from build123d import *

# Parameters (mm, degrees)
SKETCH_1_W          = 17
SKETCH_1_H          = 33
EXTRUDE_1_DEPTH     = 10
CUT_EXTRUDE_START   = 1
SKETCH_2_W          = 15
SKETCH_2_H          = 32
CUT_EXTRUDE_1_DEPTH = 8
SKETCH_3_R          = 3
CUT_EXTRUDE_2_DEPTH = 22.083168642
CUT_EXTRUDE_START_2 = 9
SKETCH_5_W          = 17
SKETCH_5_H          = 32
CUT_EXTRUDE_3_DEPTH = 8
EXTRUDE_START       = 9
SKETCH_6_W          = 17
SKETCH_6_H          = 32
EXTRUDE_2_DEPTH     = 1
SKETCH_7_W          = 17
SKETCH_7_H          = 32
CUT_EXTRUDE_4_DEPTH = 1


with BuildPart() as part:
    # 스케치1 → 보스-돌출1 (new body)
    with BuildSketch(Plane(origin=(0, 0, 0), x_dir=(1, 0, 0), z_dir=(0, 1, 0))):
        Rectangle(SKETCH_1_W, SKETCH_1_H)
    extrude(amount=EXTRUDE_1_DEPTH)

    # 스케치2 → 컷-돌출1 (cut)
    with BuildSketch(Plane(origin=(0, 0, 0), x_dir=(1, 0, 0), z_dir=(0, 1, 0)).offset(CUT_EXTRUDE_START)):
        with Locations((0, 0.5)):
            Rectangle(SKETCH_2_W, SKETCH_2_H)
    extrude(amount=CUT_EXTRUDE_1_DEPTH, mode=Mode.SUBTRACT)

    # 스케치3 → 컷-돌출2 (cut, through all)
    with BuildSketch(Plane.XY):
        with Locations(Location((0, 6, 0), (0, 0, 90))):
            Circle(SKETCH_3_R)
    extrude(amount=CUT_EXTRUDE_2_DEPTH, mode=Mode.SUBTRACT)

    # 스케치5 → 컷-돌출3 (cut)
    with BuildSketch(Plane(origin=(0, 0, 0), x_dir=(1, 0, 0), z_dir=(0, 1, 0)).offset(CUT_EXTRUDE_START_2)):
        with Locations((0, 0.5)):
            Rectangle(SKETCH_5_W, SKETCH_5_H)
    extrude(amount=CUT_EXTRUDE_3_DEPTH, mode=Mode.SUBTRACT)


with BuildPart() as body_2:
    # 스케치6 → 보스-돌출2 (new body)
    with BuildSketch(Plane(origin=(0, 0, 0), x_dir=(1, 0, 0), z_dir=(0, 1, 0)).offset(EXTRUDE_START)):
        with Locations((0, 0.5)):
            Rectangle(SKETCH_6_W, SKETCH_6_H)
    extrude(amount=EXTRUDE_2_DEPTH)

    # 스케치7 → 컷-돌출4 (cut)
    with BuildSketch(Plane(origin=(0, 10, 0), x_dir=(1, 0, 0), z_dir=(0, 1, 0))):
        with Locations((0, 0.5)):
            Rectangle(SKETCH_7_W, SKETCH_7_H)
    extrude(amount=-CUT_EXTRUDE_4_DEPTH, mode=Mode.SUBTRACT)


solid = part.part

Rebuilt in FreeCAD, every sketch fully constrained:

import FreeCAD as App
import Part
import Sketcher

V = App.Vector

doc = App.newDocument("Part")
params = doc.addObject("Spreadsheet::Sheet", "Params")
for row, (alias, value) in enumerate([
    ("sketch1_width", "17 mm"),
    ("sketch1_height", "33 mm"),
    ("pad1_length", "10 mm"),
    ("sketch2_width", "15 mm"),
    ("sketch2_height", "32 mm"),
    ("pocket1_length", "8 mm"),
    ("sketch3_diameter", "6 mm"),
    ("sketch4_width", "17 mm"),
    ("sketch4_height", "32 mm"),
    ("pocket3_length", "8 mm"),
    ("sketch5_width", "17 mm"),
    ("sketch5_height", "32 mm"),
    ("pad2_length", "1 mm"),
    ("sketch6_width", "17 mm"),
    ("sketch6_height", "32 mm"),
    ("pocket4_length", "1 mm"),
], start=1):
    params.set(f"A{row}", alias)
    params.set(f"B{row}", "=" + value)
    params.setAlias(f"B{row}", alias)

body = doc.addObject("PartDesign::Body", "Body")

# Sketch on XZ plane
sketch1 = body.newObject("Sketcher::SketchObject", "Sketch")
sketch1.AttachmentSupport = (doc.getObject("XZ_Plane"), [""])
sketch1.MapMode = "FlatFace"
sketch1.addGeometry([
    Part.LineSegment(V(-8, -16, 0), V(-8, 16, 0)),
    Part.LineSegment(V(-8, 16, 0), V(8, 16, 0)),
    Part.LineSegment(V(8, 16, 0), V(8, -16, 0)),
    Part.LineSegment(V(8, -16, 0), V(-8, -16, 0)),
], False)
sketch1.addConstraint([
    Sketcher.Constraint("Coincident", 0, 2, 1, 1),
    Sketcher.Constraint("Coincident", 1, 2, 2, 1),
    Sketcher.Constraint("Coincident", 2, 2, 3, 1),
    Sketcher.Constraint("Coincident", 3, 2, 0, 1),
    Sketcher.Constraint("Vertical", 0),
    Sketcher.Constraint("Horizontal", 1),
    Sketcher.Constraint("Vertical", 2),
    Sketcher.Constraint("Horizontal", 3),
    Sketcher.Constraint("Symmetric", 0, 2, 2, 2, -1, 1),
    Sketcher.Constraint("DistanceX", 1, 1, 1, 2, 17.0),
    Sketcher.Constraint("DistanceY", 0, 1, 0, 2, 33.0),
])
sketch1.setExpression("Constraints[9]", "Params.sketch1_width")
sketch1.setExpression("Constraints[10]", "Params.sketch1_height")
pad1 = body.newObject("PartDesign::Pad", "Pad")
pad1.Profile = sketch1
pad1.setExpression("Length", "Params.pad1_length")
pad1.Reversed = True

# Sketch on XZ plane
sketch2 = body.newObject("Sketcher::SketchObject", "Sketch001")
sketch2.AttachmentSupport = (doc.getObject("XZ_Plane"), [""])
sketch2.MapMode = "FlatFace"
sketch2.AttachmentOffset = App.Placement(V(0, 0, -1), App.Rotation())
sketch2.addGeometry([
    Part.LineSegment(V(-8, -16, 0), V(-8, 16, 0)),
    Part.LineSegment(V(-8, 16, 0), V(8, 16, 0)),
    Part.LineSegment(V(8, 16, 0), V(8, -16, 0)),
    Part.LineSegment(V(8, -16, 0), V(-8, -16, 0)),
], False)
sketch2.addConstraint([
    Sketcher.Constraint("Coincident", 0, 2, 1, 1),
    Sketcher.Constraint("Coincident", 1, 2, 2, 1),
    Sketcher.Constraint("Coincident", 2, 2, 3, 1),
    Sketcher.Constraint("Coincident", 3, 2, 0, 1),
    Sketcher.Constraint("Vertical", 0),
    Sketcher.Constraint("Horizontal", 1),
    Sketcher.Constraint("Vertical", 2),
    Sketcher.Constraint("Horizontal", 3),
    Sketcher.Constraint("DistanceX", 1, 1, 1, 2, 15.0),
    Sketcher.Constraint("DistanceY", 0, 1, 0, 2, 32.0),
    Sketcher.Constraint("DistanceX", 0, 2, -1, 1, 7.5),
    Sketcher.Constraint("DistanceY", -1, 1, 0, 2, 15.5),
])
sketch2.setExpression("Constraints[8]", "Params.sketch2_width")
sketch2.setExpression("Constraints[9]", "Params.sketch2_height")
pocket1 = body.newObject("PartDesign::Pocket", "Pocket")
pocket1.Profile = sketch2
pocket1.setExpression("Length", "Params.pocket1_length")

# Sketch on XY plane
sketch3 = body.newObject("Sketcher::SketchObject", "Sketch002")
sketch3.AttachmentSupport = (doc.getObject("XY_Plane"), [""])
sketch3.MapMode = "FlatFace"
sketch3.addGeometry(Part.Circle(V(0, 6, 0), V(0, 0, 1), 3), False)
sketch3.addConstraint([
    Sketcher.Constraint("PointOnObject", 0, 3, -2),
    Sketcher.Constraint("Diameter", 0, 6.0),
    Sketcher.Constraint("DistanceY", -1, 1, 0, 3, 6.0),
])
sketch3.setExpression("Constraints[1]", "Params.sketch3_diameter")
pocket2 = body.newObject("PartDesign::Pocket", "Pocket001")
pocket2.Profile = sketch3
pocket2.Type = "ThroughAll"
pocket2.Reversed = True

# Sketch on XZ plane
sketch4 = body.newObject("Sketcher::SketchObject", "Sketch003")
sketch4.AttachmentSupport = (doc.getObject("XZ_Plane"), [""])
sketch4.MapMode = "FlatFace"
sketch4.AttachmentOffset = App.Placement(V(0, 0, -9), App.Rotation())
sketch4.addGeometry([
    Part.LineSegment(V(-8, -16, 0), V(-8, 16, 0)),
    Part.LineSegment(V(-8, 16, 0), V(8, 16, 0)),
    Part.LineSegment(V(8, 16, 0), V(8, -16, 0)),
    Part.LineSegment(V(8, -16, 0), V(-8, -16, 0)),
], False)
sketch4.addConstraint([
    Sketcher.Constraint("Coincident", 0, 2, 1, 1),
    Sketcher.Constraint("Coincident", 1, 2, 2, 1),
    Sketcher.Constraint("Coincident", 2, 2, 3, 1),
    Sketcher.Constraint("Coincident", 3, 2, 0, 1),
    Sketcher.Constraint("Vertical", 0),
    Sketcher.Constraint("Horizontal", 1),
    Sketcher.Constraint("Vertical", 2),
    Sketcher.Constraint("Horizontal", 3),
    Sketcher.Constraint("DistanceX", 1, 1, 1, 2, 17.0),
    Sketcher.Constraint("DistanceY", 0, 1, 0, 2, 32.0),
    Sketcher.Constraint("DistanceX", 0, 2, -1, 1, 8.5),
    Sketcher.Constraint("DistanceY", -1, 1, 0, 2, 15.5),
])
sketch4.setExpression("Constraints[8]", "Params.sketch4_width")
sketch4.setExpression("Constraints[9]", "Params.sketch4_height")
pocket3 = body.newObject("PartDesign::Pocket", "Pocket002")
pocket3.Profile = sketch4
pocket3.setExpression("Length", "Params.pocket3_length")
body2 = doc.addObject("PartDesign::Body", "Body001")

# Sketch on XZ plane
sketch5 = body2.newObject("Sketcher::SketchObject", "Sketch004")
sketch5.AttachmentSupport = (doc.getObject("XZ_Plane001"), [""])
sketch5.MapMode = "FlatFace"
sketch5.AttachmentOffset = App.Placement(V(0, 0, -9), App.Rotation())
sketch5.addGeometry([
    Part.LineSegment(V(-8, -16, 0), V(-8, 16, 0)),
    Part.LineSegment(V(-8, 16, 0), V(8, 16, 0)),
    Part.LineSegment(V(8, 16, 0), V(8, -16, 0)),
    Part.LineSegment(V(8, -16, 0), V(-8, -16, 0)),
], False)
sketch5.addConstraint([
    Sketcher.Constraint("Coincident", 0, 2, 1, 1),
    Sketcher.Constraint("Coincident", 1, 2, 2, 1),
    Sketcher.Constraint("Coincident", 2, 2, 3, 1),
    Sketcher.Constraint("Coincident", 3, 2, 0, 1),
    Sketcher.Constraint("Vertical", 0),
    Sketcher.Constraint("Horizontal", 1),
    Sketcher.Constraint("Vertical", 2),
    Sketcher.Constraint("Horizontal", 3),
    Sketcher.Constraint("DistanceX", 1, 1, 1, 2, 17.0),
    Sketcher.Constraint("DistanceY", 0, 1, 0, 2, 32.0),
    Sketcher.Constraint("DistanceX", 0, 2, -1, 1, 8.5),
    Sketcher.Constraint("DistanceY", -1, 1, 0, 2, 15.5),
])
sketch5.setExpression("Constraints[8]", "Params.sketch5_width")
sketch5.setExpression("Constraints[9]", "Params.sketch5_height")
pad2 = body2.newObject("PartDesign::Pad", "Pad001")
pad2.Profile = sketch5
pad2.setExpression("Length", "Params.pad2_length")
pad2.Reversed = True

# Sketch on XZ plane
sketch6 = body2.newObject("Sketcher::SketchObject", "Sketch005")
sketch6.AttachmentSupport = (doc.getObject("XZ_Plane001"), [""])
sketch6.MapMode = "FlatFace"
sketch6.AttachmentOffset = App.Placement(V(0, 0, -10), App.Rotation())
sketch6.addGeometry([
    Part.LineSegment(V(-8, -16, 0), V(-8, 16, 0)),
    Part.LineSegment(V(-8, 16, 0), V(8, 16, 0)),
    Part.LineSegment(V(8, 16, 0), V(8, -16, 0)),
    Part.LineSegment(V(8, -16, 0), V(-8, -16, 0)),
], False)
sketch6.addConstraint([
    Sketcher.Constraint("Coincident", 0, 2, 1, 1),
    Sketcher.Constraint("Coincident", 1, 2, 2, 1),
    Sketcher.Constraint("Coincident", 2, 2, 3, 1),
    Sketcher.Constraint("Coincident", 3, 2, 0, 1),
    Sketcher.Constraint("Vertical", 0),
    Sketcher.Constraint("Horizontal", 1),
    Sketcher.Constraint("Vertical", 2),
    Sketcher.Constraint("Horizontal", 3),
    Sketcher.Constraint("DistanceX", 1, 1, 1, 2, 17.0),
    Sketcher.Constraint("DistanceY", 0, 1, 0, 2, 32.0),
    Sketcher.Constraint("DistanceX", 0, 2, -1, 1, 8.5),
    Sketcher.Constraint("DistanceY", -1, 1, 0, 2, 15.5),
])
sketch6.setExpression("Constraints[8]", "Params.sketch6_width")
sketch6.setExpression("Constraints[9]", "Params.sketch6_height")
pocket4 = body2.newObject("PartDesign::Pocket", "Pocket003")
pocket4.Profile = sketch6
pocket4.setExpression("Length", "Params.pocket4_length")
pocket4.Reversed = True

doc.recompute()
